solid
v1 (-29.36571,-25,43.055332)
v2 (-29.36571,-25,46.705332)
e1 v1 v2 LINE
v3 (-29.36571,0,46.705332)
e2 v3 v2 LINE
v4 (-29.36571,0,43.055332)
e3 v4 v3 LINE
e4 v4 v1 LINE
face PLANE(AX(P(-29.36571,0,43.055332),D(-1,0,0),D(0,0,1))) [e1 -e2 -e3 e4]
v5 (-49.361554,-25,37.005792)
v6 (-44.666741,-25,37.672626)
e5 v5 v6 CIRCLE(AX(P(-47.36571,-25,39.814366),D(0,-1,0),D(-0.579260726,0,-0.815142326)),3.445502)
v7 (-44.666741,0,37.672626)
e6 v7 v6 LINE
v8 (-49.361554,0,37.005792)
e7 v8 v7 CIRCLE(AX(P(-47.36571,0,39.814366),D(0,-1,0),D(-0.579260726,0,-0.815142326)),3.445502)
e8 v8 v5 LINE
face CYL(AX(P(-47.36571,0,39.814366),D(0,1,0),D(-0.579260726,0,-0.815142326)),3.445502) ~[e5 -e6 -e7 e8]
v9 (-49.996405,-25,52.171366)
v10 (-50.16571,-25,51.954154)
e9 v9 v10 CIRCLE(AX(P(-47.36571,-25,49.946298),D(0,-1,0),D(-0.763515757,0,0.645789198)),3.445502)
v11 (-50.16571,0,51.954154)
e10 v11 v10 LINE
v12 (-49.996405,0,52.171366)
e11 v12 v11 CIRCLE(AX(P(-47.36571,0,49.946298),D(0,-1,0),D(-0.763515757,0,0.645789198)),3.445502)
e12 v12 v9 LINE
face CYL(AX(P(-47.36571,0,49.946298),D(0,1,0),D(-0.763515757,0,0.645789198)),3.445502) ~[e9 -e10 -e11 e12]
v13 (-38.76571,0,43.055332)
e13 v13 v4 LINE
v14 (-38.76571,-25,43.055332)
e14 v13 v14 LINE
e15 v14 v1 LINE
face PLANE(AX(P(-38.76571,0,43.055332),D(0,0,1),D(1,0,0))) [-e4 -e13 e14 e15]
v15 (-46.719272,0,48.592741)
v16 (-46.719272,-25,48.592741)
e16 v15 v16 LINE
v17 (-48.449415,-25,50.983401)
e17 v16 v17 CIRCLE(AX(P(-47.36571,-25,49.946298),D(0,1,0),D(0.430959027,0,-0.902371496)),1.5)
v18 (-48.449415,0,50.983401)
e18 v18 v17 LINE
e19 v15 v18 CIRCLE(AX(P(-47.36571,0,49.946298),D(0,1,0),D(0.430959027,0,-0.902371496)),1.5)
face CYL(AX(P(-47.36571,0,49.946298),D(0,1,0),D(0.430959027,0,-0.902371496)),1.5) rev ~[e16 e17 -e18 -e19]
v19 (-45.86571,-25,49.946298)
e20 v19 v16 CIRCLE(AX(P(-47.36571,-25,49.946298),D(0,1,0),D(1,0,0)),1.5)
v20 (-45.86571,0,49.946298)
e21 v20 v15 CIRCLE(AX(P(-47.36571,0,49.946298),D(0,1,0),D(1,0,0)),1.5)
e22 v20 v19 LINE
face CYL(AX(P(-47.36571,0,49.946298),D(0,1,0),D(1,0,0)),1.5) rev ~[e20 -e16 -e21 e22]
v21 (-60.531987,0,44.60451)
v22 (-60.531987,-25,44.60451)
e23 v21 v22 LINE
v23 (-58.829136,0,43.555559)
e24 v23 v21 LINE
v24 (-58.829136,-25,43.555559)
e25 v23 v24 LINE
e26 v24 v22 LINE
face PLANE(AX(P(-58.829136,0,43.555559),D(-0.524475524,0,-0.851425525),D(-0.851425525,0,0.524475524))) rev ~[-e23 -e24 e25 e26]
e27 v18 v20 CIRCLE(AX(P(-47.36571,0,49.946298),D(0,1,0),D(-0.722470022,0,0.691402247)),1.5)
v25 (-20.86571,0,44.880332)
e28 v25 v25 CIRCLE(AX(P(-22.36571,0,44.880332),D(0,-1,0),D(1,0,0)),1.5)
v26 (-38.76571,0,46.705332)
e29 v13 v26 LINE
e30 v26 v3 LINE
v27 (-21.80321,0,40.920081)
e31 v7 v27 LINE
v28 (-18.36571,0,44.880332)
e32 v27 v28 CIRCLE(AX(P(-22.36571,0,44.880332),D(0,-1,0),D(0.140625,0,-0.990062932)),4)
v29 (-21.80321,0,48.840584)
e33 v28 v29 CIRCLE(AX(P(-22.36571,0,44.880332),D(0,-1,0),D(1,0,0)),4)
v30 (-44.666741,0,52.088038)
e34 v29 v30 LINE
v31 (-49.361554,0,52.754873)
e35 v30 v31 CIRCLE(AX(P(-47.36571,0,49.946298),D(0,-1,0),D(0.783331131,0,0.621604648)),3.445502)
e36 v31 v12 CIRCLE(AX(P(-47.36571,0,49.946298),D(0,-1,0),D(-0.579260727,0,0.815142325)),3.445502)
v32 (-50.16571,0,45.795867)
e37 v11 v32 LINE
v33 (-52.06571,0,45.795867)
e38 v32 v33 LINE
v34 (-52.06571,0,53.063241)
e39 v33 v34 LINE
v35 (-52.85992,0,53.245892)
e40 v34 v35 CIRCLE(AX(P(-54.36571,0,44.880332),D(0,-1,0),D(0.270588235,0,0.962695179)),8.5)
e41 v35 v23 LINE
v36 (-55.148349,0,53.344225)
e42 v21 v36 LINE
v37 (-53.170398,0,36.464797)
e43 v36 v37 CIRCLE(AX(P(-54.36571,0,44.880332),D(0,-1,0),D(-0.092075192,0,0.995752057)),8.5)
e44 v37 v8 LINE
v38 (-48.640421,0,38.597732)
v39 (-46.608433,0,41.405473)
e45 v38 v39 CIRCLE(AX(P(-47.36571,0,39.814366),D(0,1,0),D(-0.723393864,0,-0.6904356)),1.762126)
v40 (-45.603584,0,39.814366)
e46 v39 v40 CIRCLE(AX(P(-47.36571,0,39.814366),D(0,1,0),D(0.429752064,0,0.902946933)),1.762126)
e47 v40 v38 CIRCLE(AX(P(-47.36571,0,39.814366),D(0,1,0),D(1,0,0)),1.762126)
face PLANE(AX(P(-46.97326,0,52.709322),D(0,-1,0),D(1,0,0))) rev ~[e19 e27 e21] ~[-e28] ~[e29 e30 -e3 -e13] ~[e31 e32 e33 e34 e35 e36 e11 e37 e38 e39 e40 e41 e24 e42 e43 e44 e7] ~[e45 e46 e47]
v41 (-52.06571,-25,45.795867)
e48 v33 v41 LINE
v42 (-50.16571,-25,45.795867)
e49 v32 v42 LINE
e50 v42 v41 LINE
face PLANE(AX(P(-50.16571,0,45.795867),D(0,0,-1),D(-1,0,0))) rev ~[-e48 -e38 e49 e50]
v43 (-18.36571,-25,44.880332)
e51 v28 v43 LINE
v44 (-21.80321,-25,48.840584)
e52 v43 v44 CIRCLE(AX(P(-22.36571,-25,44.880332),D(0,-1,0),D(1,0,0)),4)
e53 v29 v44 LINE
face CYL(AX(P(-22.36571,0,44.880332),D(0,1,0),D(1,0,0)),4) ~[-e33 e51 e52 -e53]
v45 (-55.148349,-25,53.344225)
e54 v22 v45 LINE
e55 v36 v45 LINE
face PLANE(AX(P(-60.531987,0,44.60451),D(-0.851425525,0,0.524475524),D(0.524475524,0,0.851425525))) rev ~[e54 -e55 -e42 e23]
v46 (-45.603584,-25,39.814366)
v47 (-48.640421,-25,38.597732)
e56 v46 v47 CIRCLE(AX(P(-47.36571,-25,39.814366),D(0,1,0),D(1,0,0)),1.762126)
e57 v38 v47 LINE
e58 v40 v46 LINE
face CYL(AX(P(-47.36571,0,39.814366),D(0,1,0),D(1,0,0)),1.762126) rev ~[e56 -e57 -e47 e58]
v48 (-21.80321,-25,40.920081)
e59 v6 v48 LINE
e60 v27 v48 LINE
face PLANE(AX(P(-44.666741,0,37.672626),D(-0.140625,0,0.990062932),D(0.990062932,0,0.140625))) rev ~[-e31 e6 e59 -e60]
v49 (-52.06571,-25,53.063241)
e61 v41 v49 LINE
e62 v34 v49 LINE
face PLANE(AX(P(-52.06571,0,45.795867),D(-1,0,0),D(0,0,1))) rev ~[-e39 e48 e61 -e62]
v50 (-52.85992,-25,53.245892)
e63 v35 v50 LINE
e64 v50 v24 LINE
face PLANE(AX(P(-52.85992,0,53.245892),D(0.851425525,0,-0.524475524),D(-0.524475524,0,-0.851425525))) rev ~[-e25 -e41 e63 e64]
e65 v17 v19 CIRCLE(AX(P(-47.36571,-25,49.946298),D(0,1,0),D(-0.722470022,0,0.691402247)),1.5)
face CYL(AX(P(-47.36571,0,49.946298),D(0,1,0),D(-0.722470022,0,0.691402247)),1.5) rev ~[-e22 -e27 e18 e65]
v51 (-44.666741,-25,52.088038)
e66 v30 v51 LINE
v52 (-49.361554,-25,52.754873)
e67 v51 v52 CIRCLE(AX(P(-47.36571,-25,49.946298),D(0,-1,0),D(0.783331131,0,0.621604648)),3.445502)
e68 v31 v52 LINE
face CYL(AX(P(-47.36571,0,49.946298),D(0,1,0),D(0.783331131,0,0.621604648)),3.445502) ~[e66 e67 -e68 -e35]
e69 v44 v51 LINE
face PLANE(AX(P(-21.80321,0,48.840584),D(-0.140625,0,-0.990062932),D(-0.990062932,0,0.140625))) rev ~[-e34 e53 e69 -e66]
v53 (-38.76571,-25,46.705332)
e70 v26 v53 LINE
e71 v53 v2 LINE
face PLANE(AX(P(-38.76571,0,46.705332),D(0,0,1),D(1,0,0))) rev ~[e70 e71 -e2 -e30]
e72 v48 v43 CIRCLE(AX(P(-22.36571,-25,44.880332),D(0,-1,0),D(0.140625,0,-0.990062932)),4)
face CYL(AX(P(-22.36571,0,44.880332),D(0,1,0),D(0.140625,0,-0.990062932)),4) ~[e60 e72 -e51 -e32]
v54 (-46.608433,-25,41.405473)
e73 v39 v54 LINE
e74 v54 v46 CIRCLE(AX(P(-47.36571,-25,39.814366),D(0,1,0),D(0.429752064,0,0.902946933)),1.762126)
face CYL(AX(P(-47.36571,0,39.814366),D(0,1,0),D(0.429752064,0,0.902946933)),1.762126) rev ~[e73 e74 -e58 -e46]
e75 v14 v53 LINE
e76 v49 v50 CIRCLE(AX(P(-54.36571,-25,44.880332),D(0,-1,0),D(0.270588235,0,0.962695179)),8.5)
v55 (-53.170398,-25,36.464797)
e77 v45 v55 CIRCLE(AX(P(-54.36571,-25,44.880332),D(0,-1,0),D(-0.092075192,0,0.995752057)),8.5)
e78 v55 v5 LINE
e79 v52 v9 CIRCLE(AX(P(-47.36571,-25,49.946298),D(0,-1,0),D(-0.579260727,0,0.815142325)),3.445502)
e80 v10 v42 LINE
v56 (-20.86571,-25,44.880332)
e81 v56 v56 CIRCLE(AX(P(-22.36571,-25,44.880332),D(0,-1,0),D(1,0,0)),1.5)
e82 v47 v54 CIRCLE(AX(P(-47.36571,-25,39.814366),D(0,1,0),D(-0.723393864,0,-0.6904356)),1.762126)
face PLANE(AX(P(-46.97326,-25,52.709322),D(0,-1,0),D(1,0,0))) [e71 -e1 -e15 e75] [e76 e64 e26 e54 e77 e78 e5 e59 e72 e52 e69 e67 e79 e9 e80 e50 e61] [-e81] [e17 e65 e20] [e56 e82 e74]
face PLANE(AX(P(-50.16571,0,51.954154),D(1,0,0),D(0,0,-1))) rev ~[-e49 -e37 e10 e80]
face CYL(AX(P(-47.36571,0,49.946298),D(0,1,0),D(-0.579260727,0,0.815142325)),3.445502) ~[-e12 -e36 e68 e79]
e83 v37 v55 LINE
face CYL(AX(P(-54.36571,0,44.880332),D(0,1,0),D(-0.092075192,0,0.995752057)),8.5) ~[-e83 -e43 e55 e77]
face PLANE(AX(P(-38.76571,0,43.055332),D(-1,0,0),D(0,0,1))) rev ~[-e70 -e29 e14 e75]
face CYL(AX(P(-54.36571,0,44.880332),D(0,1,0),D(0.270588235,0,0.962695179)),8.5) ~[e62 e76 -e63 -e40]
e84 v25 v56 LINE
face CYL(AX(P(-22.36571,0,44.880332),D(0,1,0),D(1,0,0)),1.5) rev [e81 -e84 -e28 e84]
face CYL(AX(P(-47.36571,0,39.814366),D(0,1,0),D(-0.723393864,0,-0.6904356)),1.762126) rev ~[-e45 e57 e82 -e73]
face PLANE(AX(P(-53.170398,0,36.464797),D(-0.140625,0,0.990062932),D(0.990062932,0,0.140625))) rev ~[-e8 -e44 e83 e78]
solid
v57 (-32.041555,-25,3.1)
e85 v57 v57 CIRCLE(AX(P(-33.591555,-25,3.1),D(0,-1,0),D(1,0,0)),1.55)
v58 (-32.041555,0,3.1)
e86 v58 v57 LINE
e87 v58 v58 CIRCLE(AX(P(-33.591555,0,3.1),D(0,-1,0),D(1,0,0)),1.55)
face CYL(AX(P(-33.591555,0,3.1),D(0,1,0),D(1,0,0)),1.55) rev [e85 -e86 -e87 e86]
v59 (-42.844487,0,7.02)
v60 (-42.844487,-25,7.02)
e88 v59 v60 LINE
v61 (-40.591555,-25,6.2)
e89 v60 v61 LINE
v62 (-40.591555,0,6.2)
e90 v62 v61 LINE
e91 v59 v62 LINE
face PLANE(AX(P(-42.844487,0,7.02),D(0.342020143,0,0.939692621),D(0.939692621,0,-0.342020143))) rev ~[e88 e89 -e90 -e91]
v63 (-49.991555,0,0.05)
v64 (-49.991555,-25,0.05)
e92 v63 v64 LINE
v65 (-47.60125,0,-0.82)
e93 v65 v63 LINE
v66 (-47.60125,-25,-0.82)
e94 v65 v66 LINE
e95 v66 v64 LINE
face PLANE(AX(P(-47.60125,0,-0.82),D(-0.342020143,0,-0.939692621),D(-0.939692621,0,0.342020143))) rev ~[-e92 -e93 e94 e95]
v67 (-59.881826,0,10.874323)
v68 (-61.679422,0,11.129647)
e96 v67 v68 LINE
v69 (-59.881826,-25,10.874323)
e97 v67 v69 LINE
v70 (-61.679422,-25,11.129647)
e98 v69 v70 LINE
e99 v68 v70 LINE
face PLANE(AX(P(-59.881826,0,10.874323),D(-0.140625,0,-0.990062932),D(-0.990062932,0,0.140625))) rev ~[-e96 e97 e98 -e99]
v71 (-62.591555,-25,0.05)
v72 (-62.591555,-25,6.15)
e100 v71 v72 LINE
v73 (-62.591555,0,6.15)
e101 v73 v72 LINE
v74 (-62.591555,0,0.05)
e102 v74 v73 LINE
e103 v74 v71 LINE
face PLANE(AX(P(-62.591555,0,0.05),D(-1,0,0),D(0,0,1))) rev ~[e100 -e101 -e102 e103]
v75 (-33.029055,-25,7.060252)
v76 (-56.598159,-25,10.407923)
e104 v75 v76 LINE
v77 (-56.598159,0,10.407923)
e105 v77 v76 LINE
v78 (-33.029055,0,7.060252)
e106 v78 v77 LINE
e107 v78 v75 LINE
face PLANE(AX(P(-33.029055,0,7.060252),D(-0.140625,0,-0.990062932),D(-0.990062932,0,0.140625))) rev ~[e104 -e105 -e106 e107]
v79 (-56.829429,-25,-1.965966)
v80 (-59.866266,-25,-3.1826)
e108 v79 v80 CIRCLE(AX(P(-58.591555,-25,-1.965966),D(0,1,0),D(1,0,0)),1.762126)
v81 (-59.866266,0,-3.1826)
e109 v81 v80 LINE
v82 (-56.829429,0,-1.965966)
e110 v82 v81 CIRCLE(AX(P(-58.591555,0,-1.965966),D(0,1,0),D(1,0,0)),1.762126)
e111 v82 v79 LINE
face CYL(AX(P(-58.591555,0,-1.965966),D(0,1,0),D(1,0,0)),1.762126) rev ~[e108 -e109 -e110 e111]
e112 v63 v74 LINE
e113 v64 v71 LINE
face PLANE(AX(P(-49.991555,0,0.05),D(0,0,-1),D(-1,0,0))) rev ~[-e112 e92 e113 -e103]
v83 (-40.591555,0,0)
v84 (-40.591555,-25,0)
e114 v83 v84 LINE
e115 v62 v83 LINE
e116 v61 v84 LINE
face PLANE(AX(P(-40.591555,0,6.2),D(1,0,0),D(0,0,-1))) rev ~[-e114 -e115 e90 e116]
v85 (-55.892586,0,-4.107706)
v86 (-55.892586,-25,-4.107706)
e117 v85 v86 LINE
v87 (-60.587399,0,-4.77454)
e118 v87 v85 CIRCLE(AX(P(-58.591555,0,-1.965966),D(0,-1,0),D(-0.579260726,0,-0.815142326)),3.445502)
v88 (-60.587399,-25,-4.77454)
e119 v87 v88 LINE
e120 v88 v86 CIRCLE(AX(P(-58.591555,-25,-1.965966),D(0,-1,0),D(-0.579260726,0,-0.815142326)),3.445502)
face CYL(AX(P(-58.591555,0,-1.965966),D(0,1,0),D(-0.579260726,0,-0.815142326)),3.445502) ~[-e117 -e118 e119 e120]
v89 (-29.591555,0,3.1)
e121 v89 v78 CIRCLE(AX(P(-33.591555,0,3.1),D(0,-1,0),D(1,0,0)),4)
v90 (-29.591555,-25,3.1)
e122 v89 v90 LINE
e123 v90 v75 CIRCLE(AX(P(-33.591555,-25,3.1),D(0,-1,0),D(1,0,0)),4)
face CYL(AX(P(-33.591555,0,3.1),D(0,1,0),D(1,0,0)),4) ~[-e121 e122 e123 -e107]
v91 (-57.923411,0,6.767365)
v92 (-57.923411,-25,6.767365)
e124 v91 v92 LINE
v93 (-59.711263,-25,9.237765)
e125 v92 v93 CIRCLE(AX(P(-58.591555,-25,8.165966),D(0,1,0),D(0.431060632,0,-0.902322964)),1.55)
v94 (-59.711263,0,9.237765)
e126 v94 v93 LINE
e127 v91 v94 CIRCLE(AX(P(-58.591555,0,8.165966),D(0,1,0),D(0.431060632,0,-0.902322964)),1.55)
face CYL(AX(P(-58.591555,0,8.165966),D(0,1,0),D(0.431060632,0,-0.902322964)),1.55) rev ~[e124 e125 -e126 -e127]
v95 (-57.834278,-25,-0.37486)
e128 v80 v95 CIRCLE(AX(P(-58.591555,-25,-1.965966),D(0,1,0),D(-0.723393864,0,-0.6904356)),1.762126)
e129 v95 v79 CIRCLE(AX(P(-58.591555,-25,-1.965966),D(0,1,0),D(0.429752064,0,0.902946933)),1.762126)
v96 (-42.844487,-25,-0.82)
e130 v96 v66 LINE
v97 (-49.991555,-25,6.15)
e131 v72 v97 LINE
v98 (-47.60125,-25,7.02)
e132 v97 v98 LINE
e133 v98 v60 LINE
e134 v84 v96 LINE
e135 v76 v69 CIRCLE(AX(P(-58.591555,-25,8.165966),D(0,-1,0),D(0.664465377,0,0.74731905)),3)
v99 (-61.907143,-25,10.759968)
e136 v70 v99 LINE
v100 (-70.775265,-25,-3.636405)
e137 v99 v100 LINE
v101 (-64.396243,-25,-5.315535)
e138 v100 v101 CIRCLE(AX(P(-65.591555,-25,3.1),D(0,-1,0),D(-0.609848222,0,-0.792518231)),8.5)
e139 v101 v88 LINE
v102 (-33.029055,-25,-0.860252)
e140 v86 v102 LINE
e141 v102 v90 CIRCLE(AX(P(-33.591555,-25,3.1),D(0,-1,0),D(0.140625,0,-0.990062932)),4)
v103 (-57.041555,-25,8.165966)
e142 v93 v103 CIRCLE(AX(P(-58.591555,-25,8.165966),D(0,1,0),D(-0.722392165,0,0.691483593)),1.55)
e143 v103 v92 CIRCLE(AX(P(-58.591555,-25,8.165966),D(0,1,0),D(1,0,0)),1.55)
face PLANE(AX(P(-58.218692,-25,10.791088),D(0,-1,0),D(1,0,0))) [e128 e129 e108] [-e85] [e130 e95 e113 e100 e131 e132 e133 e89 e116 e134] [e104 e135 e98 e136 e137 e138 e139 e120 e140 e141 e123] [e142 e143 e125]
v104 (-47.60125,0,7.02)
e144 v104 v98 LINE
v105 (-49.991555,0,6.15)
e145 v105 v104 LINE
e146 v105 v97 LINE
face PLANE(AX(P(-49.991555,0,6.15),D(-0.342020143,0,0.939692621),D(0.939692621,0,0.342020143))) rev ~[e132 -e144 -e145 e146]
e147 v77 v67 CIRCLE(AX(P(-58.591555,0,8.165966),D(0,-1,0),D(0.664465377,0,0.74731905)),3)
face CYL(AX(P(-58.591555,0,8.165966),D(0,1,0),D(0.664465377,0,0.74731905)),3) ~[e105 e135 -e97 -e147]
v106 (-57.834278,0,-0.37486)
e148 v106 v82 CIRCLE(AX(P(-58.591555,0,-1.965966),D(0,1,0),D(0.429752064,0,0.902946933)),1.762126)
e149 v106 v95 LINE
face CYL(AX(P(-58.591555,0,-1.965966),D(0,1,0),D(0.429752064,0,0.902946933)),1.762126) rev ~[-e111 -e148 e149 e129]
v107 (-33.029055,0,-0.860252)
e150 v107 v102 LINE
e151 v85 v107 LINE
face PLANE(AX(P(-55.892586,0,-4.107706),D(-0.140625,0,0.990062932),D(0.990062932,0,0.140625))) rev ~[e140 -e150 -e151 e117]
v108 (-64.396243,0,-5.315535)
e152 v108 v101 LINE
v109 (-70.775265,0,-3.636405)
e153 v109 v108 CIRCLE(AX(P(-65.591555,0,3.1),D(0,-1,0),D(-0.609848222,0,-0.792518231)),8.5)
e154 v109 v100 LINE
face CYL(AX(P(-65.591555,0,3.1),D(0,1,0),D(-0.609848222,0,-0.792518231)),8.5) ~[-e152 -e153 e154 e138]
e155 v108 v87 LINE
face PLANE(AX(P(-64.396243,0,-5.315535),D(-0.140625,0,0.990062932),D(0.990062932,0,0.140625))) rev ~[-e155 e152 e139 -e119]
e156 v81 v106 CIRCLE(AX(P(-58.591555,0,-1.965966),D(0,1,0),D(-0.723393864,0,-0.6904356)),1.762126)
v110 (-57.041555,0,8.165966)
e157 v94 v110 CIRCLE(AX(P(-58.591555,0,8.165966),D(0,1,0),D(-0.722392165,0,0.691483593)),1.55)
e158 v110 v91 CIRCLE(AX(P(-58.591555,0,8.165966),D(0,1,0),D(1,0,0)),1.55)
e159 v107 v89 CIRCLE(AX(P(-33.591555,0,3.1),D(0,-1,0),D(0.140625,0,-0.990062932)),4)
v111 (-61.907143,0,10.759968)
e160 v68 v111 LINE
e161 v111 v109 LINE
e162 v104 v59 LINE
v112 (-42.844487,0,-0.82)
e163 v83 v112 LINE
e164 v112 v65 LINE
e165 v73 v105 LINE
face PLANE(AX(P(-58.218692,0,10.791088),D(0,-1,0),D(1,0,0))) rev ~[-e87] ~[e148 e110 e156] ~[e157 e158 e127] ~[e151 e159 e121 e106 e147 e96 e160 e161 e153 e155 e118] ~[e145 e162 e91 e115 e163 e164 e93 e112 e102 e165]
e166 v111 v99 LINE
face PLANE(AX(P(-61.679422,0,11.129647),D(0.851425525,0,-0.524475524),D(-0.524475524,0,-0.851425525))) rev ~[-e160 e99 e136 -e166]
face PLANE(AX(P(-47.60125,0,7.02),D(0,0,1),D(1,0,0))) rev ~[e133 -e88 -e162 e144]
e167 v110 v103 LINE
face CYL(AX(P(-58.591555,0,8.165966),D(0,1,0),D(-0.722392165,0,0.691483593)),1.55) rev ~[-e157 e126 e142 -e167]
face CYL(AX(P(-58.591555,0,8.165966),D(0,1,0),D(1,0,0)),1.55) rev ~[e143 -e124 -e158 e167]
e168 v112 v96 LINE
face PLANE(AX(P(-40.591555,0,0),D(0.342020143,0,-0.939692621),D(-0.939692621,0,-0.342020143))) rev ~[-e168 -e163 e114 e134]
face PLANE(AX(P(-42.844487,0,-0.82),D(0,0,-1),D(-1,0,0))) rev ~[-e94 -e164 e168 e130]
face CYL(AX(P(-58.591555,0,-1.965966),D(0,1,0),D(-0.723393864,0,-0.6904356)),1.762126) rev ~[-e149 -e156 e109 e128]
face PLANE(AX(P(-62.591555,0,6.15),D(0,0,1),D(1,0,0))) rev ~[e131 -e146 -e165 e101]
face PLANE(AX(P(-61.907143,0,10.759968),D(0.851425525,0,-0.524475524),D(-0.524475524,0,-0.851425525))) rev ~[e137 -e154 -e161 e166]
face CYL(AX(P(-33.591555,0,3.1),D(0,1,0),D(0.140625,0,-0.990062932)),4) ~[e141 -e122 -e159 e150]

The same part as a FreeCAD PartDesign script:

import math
import FreeCAD as App
import Part
import Sketcher
from FreeCAD import Vector

doc = App.newDocument("Part")
params = doc.addObject("Spreadsheet::Sheet", "Params")
for row, (alias, value) in enumerate([
    ("sketch1_diameter", "3 mm"),
    ("sketch1_radius", "4 mm"),
    ("sketch1_radius2", "8.5 mm"),
    ("sketch1_length", "2 mm"),
    ("sketch1_width", "1.9 mm"),
    ("pad1_length", "25 mm"),
    ("sketch2_radius", "3 mm"),
    ("sketch2_radius2", "4 mm"),
    ("sketch2_diameter", "3.1 mm"),
    ("sketch2_radius3", "8.5 mm"),
    ("sketch2_radius4", "1.55 mm"),
    ("pad2_length", "25 mm"),
], start=1):
    params.set(f"A{row}", alias)
    params.set(f"B{row}", "=" + value)
    params.setAlias(f"B{row}", alias)

body = doc.addObject("PartDesign::Body", "Body")

sketch1 = body.newObject("Sketcher::SketchObject", "Sketch")
sketch1.AttachmentSupport = (doc.getObject("XZ_Plane"), [""])
sketch1.MapMode = "FlatFace"
sketch1.addGeometry([
    Part.ArcOfCircle(Part.Circle(Vector(-47.37, 49.95, 0), Vector(0, 0, 1), 3.45), math.radians(38), math.radians(125)),
    Part.ArcOfCircle(Part.Circle(Vector(-47.37, 49.95, 0), Vector(0, 0, 1), 3.45), math.radians(125.4), math.radians(139.78)),
    Part.ArcOfCircle(Part.Circle(Vector(-47.37, 49.95, 0), Vector(0, 0, 1), 3.45), math.radians(139.78), math.radians(144.36)),
    Part.LineSegment(Vector(-50.17, 51.95, 0), Vector(-50.17, 45.8, 0)),
    Part.LineSegment(Vector(-50.17, 45.8, 0), Vector(-52.07, 45.8, 0)),
    Part.LineSegment(Vector(-52.07, 45.8, 0), Vector(-52.07, 53.06, 0)),
    Part.ArcOfCircle(Part.Circle(Vector(-54.37, 44.88, 0), Vector(0, 0, 1), 8.5), math.radians(74.3), math.radians(79.8)),
    Part.LineSegment(Vector(-52.86, 53.25, 0), Vector(-58.83, 43.56, 0)),
    Part.LineSegment(Vector(-58.83, 43.56, 0), Vector(-60.53, 44.6, 0)),
    Part.LineSegment(Vector(-60.53, 44.6, 0), Vector(-55.15, 53.34, 0)),
    Part.ArcOfCircle(Part.Circle(Vector(-54.37, 44.88, 0), Vector(0, 0, 1), 8.5), math.radians(95), math.radians(278)),
    Part.LineSegment(Vector(-53.17, 36.46, 0), Vector(-49.36, 37.01, 0)),
    Part.ArcOfCircle(Part.Circle(Vector(-47.37, 39.81, 0), Vector(0, 0, 1), 3.45), math.radians(-125), math.radians(-38)),
    Part.LineSegment(Vector(-44.67, 37.67, 0), Vector(-21.8, 40.92, 0)),
    Part.ArcOfCircle(Part.Circle(Vector(-22.37, 44.88, 0), Vector(0, 0, 1), 4), math.radians(-82), math.radians(0)),
    Part.ArcOfCircle(Part.Circle(Vector(-22.37, 44.88, 0), Vector(0, 0, 1), 4), math.radians(0), math.radians(82)),
    Part.LineSegment(Vector(-21.8, 48.84, 0), Vector(-44.67, 52.09, 0)),
    Part.ArcOfCircle(Part.Circle(Vector(-47.37, 49.95, 0), Vector(0, 0, 1), 1.5), math.radians(0), math.radians(136)),
    Part.ArcOfCircle(Part.Circle(Vector(-47.37, 49.95, 0), Vector(0, 0, 1), 1.5), math.radians(-64), math.radians(0)),
    Part.ArcOfCircle(Part.Circle(Vector(-47.37, 49.95, 0), Vector(0, 0, 1), 1.5), math.radians(136), math.radians(296)),
    Part.ArcOfCircle(Part.Circle(Vector(-47.37, 39.81, 0), Vector(0, 0, 1), 1.76), math.radians(0), math.radians(65)),
    Part.ArcOfCircle(Part.Circle(Vector(-47.37, 39.81, 0), Vector(0, 0, 1), 1.76), math.radians(-136), math.radians(0)),
    Part.ArcOfCircle(Part.Circle(Vector(-47.37, 39.81, 0), Vector(0, 0, 1), 1.76), math.radians(65), math.radians(224)),
    Part.LineSegment(Vector(-29.37, 43.06, 0), Vector(-38.77, 43.06, 0)),
    Part.LineSegment(Vector(-38.77, 43.06, 0), Vector(-38.77, 46.71, 0)),
    Part.LineSegment(Vector(-38.77, 46.71, 0), Vector(-29.37, 46.71, 0)),
    Part.LineSegment(Vector(-29.37, 46.71, 0), Vector(-29.37, 43.06, 0)),
    Part.Circle(Vector(-22.37, 44.88, 0), Vector(0, 0, 1), 1.5),
], False)
sketch1.addConstraint([
    Sketcher.Constraint("Tangent", 0, 2, 1, 1),
    Sketcher.Constraint("Tangent", 1, 2, 2, 1),
    Sketcher.Constraint("Coincident", 2, 2, 3, 1),
    Sketcher.Constraint("Coincident", 3, 2, 4, 1),
    Sketcher.Constraint("Coincident", 4, 2, 5, 1),
    Sketcher.Constraint("Coincident", 5, 2, 6, 1),
    Sketcher.Constraint("Coincident", 6, 2, 7, 1),
    Sketcher.Constraint("Coincident", 7, 2, 8, 1),
    Sketcher.Constraint("Coincident", 8, 2, 9, 1),
    Sketcher.Constraint("Coincident", 9, 2, 10, 1),
    Sketcher.Constraint("Tangent", 10, 2, 11, 1),
    Sketcher.Constraint("Coincident", 11, 2, 12, 1),
    Sketcher.Constraint("Coincident", 12, 2, 13, 1),
    Sketcher.Constraint("Tangent", 13, 2, 14, 1),
    Sketcher.Constraint("Tangent", 14, 2, 15, 1),
    Sketcher.Constraint("Tangent", 15, 2, 16, 1),
    Sketcher.Constraint("Coincident", 16, 2, 0, 1),
    Sketcher.Constraint("Tangent", 17, 1, 18, 2),
    Sketcher.Constraint("Tangent", 18, 1, 19, 2),
    Sketcher.Constraint("Tangent", 19, 1, 17, 2),
    Sketcher.Constraint("Tangent", 20, 1, 21, 2),
    Sketcher.Constraint("Tangent", 21, 1, 22, 2),
    Sketcher.Constraint("Tangent", 22, 1, 20, 2),
    Sketcher.Constraint("Coincident", 23, 2, 24, 1),
    Sketcher.Constraint("Coincident", 24, 2, 25, 1),
    Sketcher.Constraint("Coincident", 25, 2, 26, 1),
    Sketcher.Constraint("Coincident", 26, 2, 23, 1),
    Sketcher.Constraint("Vertical", 3),
    Sketcher.Constraint("Horizontal", 4),
    Sketcher.Constraint("Vertical", 5),
    Sketcher.Constraint("Horizontal", 23),
    Sketcher.Constraint("Vertical", 24),
    Sketcher.Constraint("Horizontal", 25),
    Sketcher.Constraint("Vertical", 26),
    Sketcher.Constraint("Coincident", 2, 3, 0, 3),
    Sketcher.Constraint("Coincident", 10, 3, 6, 3),
    Sketcher.Constraint("Coincident", 17, 3, 0, 3),
    Sketcher.Constraint("Coincident", 20, 3, 12, 3),
    Sketcher.Constraint("Coincident", 27, 3, 14, 3),
    Sketcher.Constraint("Equal", 6, 10),
    Sketcher.Constraint("Equal", 2, 12),
    Sketcher.Constraint("Equal", 14, 15),
    Sketcher.Constraint("Equal", 19, 27),
    Sketcher.Constraint("Perpendicular", 7, 8),
    Sketcher.Constraint("Perpendicular", 8, 9),
    Sketcher.Constraint("Parallel", 11, 13),
    Sketcher.Constraint("Horizontal", 10, 3, 14, 3),
    Sketcher.Constraint("Horizontal", 27, 3, 14, 2),
    Sketcher.Constraint("Horizontal", 19, 3, 17, 1),
    Sketcher.Constraint("Horizontal", 22, 3, 20, 1),
    Sketcher.Constraint("Vertical", 2, 3, 12, 3),
    Sketcher.Constraint("Vertical", 0, 2, 11, 2),
    Sketcher.Constraint("Vertical", 13, 2, 15, 2),
    Sketcher.Constraint("Vertical", 12, 2, 16, 2),
    Sketcher.Constraint("Diameter", 27, 3.0),
    Sketcher.Constraint("Radius", 14, 4.0),
    Sketcher.Constraint("Radius", 6, 8.5),
    Sketcher.Constraint("Distance", 8, 2.0),
    Sketcher.Constraint("DistanceX", 4, 2, 4, 1, 1.9),
    Sketcher.Constraint("DistanceX", 23, 2, 23, 1, 9.4),
    Sketcher.Constraint("DistanceX", 6, 3, 0, 3, 7.0),
    Sketcher.Constraint("DistanceX", 2, 3, 14, 3, 25.0),
    Sketcher.Constraint("DistanceX", 25, 2, 14, 3, 7.0),
    Sketcher.Constraint("DistanceY", 24, 1, 24, 2, 3.65),
    Sketcher.Constraint("DistanceX", 2, 2, 0, 3, 2.8),
    Sketcher.Constraint("Radius", 0, 3.445502),
    Sketcher.Constraint("Radius", 20, 1.762126),
    Sketcher.Constraint("DistanceY", 14, 3, 25, 2, 1.825),
    Sketcher.Constraint("DistanceY", -1, 1, 0, 3, 49.946298),
    Sketcher.Constraint("DistanceY", -1, 1, 19, 1, 50.983401),
    Sketcher.Constraint("DistanceX", 14, 3, 13, 2, 0.5625),
    Sketcher.Constraint("DistanceY", 3, 2, 3, 1, 6.158287),
    Sketcher.Constraint("DistanceY", 5, 1, 5, 2, 7.267374),
    Sketcher.Constraint("DistanceX", 0, 3, -1, 1, 47.36571),
    Sketcher.Constraint("DistanceX", 6, 2, -1, 1, 52.85992),
    Sketcher.Constraint("DistanceY", -1, 1, 7, 2, 43.555559),
    Sketcher.Constraint("DistanceY", -1, 1, 8, 2, 44.60451),
    Sketcher.Constraint("DistanceX", 18, 1, -1, 1, 46.719272),
    Sketcher.Constraint("DistanceX", 21, 1, -1, 1, 48.640421),
    Sketcher.Constraint("DistanceX", 1, 2, 0, 2, 0.634851),
    Sketcher.Constraint("DistanceX", 22, 1, 20, 1, 1.004849),
])
sketch1.setExpression("Constraints[54]", "Params.sketch1_diameter")
sketch1.setExpression("Constraints[55]", "Params.sketch1_radius")
sketch1.setExpression("Constraints[56]", "Params.sketch1_radius2")
sketch1.setExpression("Constraints[57]", "Params.sketch1_length")
sketch1.setExpression("Constraints[58]", "Params.sketch1_width")
pad1 = body.newObject("PartDesign::Pad", "Pad")
pad1.Profile = sketch1
pad1.setExpression("Length", "Params.pad1_length")
body2 = doc.addObject("PartDesign::Body", "Body001")

sketch2 = body2.newObject("Sketcher::SketchObject", "Sketch001")
sketch2.AttachmentSupport = (doc.getObject("XZ_Plane001"), [""])
sketch2.MapMode = "FlatFace"
sketch2.addGeometry([
    Part.ArcOfCircle(Part.Circle(Vector(-58.591555, 8.165966, 0), Vector(0, 0, 1), 3), math.radians(48.358676), math.radians(115.473296)),
    Part.LineSegment(Vector(-59.881826, 10.874323, 0), Vector(-61.679422, 11.129647, 0)),
    Part.LineSegment(Vector(-61.679422, 11.129647, 0), Vector(-61.907143, 10.759968, 0)),
    Part.LineSegment(Vector(-61.907143, 10.759968, 0), Vector(-70.775265, -3.636405, 0)),
    Part.ArcOfCircle(Part.Circle(Vector(-65.591555, 3.1, 0), Vector(0, 0, 1), 8.5), math.radians(-127.578529), math.radians(-81.915986)),
    Part.LineSegment(Vector(-64.396243, -5.315535, 0), Vector(-60.587399, -4.77454, 0)),
    Part.ArcOfCircle(Part.Circle(Vector(-58.591555, -1.965966, 0), Vector(0, 0, 1), 3.445502), math.radians(-125.398563), math.radians(-38.433409)),
    Part.LineSegment(Vector(-55.892586, -4.107706, 0), Vector(-33.029055, -0.860252, 0)),
    Part.ArcOfCircle(Part.Circle(Vector(-33.591555, 3.1, 0), Vector(0, 0, 1), 4), math.radians(-81.915986), math.radians(0)),
    Part.ArcOfCircle(Part.Circle(Vector(-33.591555, 3.1, 0), Vector(0, 0, 1), 4), math.radians(0), math.radians(81.915986)),
    Part.LineSegment(Vector(-33.029055, 7.060252, 0), Vector(-56.598159, 10.407923, 0)),
    Part.ArcOfCircle(Part.Circle(Vector(-58.591555, -1.965966, 0), Vector(0, 0, 1), 1.762126), math.radians(0), math.radians(64.548173)),
    Part.ArcOfCircle(Part.Circle(Vector(-58.591555, -1.965966, 0), Vector(0, 0, 1), 1.762126), math.radians(-136.3354), math.radians(0)),
    Part.ArcOfCircle(Part.Circle(Vector(-58.591555, -1.965966, 0), Vector(0, 0, 1), 1.762126), math.radians(64.548173), math.radians(223.6646)),
    Part.LineSegment(Vector(-62.591555, 0.05, 0), Vector(-62.591555, 6.15, 0)),
    Part.LineSegment(Vector(-62.591555, 6.15, 0), Vector(-49.991555, 6.15, 0)),
    Part.LineSegment(Vector(-49.991555, 6.15, 0), Vector(-47.60125, 7.02, 0)),
    Part.LineSegment(Vector(-47.60125, 7.02, 0), Vector(-42.844487, 7.02, 0)),
    Part.LineSegment(Vector(-42.844487, 7.02, 0), Vector(-40.591555, 6.2, 0)),
    Part.LineSegment(Vector(-40.591555, 6.2, 0), Vector(-40.591555, 0, 0)),
    Part.LineSegment(Vector(-40.591555, 0, 0), Vector(-42.844487, -0.82, 0)),
    Part.LineSegment(Vector(-42.844487, -0.82, 0), Vector(-47.60125, -0.82, 0)),
    Part.LineSegment(Vector(-47.60125, -0.82, 0), Vector(-49.991555, 0.05, 0)),
    Part.LineSegment(Vector(-49.991555, 0.05, 0), Vector(-62.591555, 0.05, 0)),
    Part.ArcOfCircle(Part.Circle(Vector(-58.591555, 8.165966, 0), Vector(0, 0, 1), 1.55), math.radians(0), math.radians(136.252337)),
    Part.ArcOfCircle(Part.Circle(Vector(-58.591555, 8.165966, 0), Vector(0, 0, 1), 1.55), math.radians(-64.465111), math.radians(0)),
    Part.ArcOfCircle(Part.Circle(Vector(-58.591555, 8.165966, 0), Vector(0, 0, 1), 1.55), math.radians(136.252337), math.radians(295.534889)),
    Part.Circle(Vector(-33.591555, 3.1, 0), Vector(0, 0, 1), 1.55),
], False)
sketch2.addConstraint([
    Sketcher.Constraint("Coincident", 0, 2, 1, 1),
    Sketcher.Constraint("Coincident", 1, 2, 2, 1),
    Sketcher.Constraint("Coincident", 2, 2, 3, 1),
    Sketcher.Constraint("Coincident", 3, 2, 4, 1),
    Sketcher.Constraint("Coincident", 4, 2, 5, 1),
    Sketcher.Constraint("Coincident", 5, 2, 6, 1),
    Sketcher.Constraint("Coincident", 6, 2, 7, 1),
    Sketcher.Constraint("Coincident", 7, 2, 8, 1),
    Sketcher.Constraint("Coincident", 8, 2, 9, 1),
    Sketcher.Constraint("Coincident", 9, 2, 10, 1),
    Sketcher.Constraint("Coincident", 10, 2, 0, 1),
    Sketcher.Constraint("Coincident", 11, 1, 12, 2),
    Sketcher.Constraint("Coincident", 12, 1, 13, 2),
    Sketcher.Constraint("Coincident", 13, 1, 11, 2),
    Sketcher.Constraint("Coincident", 14, 2, 15, 1),
    Sketcher.Constraint("Coincident", 15, 2, 16, 1),
    Sketcher.Constraint("Coincident", 16, 2, 17, 1),
    Sketcher.Constraint("Coincident", 17, 2, 18, 1),
    Sketcher.Constraint("Coincident", 18, 2, 19, 1),
    Sketcher.Constraint("Coincident", 19, 2, 20, 1),
    Sketcher.Constraint("Coincident", 20, 2, 21, 1),
    Sketcher.Constraint("Coincident", 21, 2, 22, 1),
    Sketcher.Constraint("Coincident", 22, 2, 23, 1),
    Sketcher.Constraint("Coincident", 23, 2, 14, 1),
    Sketcher.Constraint("Coincident", 24, 1, 25, 2),
    Sketcher.Constraint("Coincident", 25, 1, 26, 2),
    Sketcher.Constraint("Coincident", 26, 1, 24, 2),
    Sketcher.Constraint("Vertical", 14),
    Sketcher.Constraint("Horizontal", 15),
    Sketcher.Constraint("Horizontal", 17),
    Sketcher.Constraint("Vertical", 19),
    Sketcher.Constraint("Horizontal", 21),
    Sketcher.Constraint("Horizontal", 23),
    Sketcher.Constraint("Coincident", 9, 3, 8, 3),
    Sketcher.Constraint("Coincident", 11, 3, 6, 3),
    Sketcher.Constraint("Coincident", 12, 3, 6, 3),
    Sketcher.Constraint("Coincident", 24, 3, 0, 3),
    Sketcher.Constraint("Coincident", 25, 3, 0, 3),
    Sketcher.Constraint("Coincident", 27, 3, 8, 3),
    Sketcher.Constraint("PointOnObject", 19, 2, -1),
    Sketcher.Constraint("Radius", 0, 3.0),
    Sketcher.Constraint("Radius", 8, 4.0),
    Sketcher.Constraint("Diameter", 27, 3.1),
    Sketcher.Constraint("Radius", 4, 8.5),
    Sketcher.Constraint("Radius", 24, 1.55),
    Sketcher.Constraint("Radius", 26, 1.55),
    Sketcher.Constraint("DistanceX", 15, 1, 15, 2, 12.6),
    Sketcher.Constraint("DistanceX", 23, 2, 23, 1, 12.6),
    Sketcher.Constraint("DistanceY", 14, 1, 14, 2, 6.1),
    Sketcher.Constraint("DistanceY", 19, 2, 19, 1, 6.2),
    Sketcher.Constraint("DistanceX", 4, 3, 0, 3, 7.0),
    Sketcher.Constraint("DistanceX", 4, 3, 6, 3, 7.0),
    Sketcher.Constraint("DistanceX", 0, 3, 8, 3, 25.0),
    Sketcher.Constraint("DistanceX", 4, 3, 13, 3, 7.0),
    Sketcher.Constraint("DistanceX", 4, 3, 14, 2, 3.0),
    Sketcher.Constraint("DistanceX", 18, 2, 8, 3, 7.0),
    Sketcher.Constraint("DistanceY", -1, 1, 4, 3, 3.1),
    Sketcher.Constraint("DistanceY", -1, 1, 8, 3, 3.1),
    Sketcher.Constraint("DistanceY", -1, 1, 8, 2, 3.1),
    Sketcher.Constraint("DistanceY", -1, 1, 14, 2, 6.15),
    Sketcher.Constraint("DistanceY", -1, 1, 16, 2, 7.02),
    Sketcher.Constraint("DistanceY", 20, 2, -1, 1, 0.82),
    Sketcher.Constraint("Radius", 6, 3.445502),
    Sketcher.Constraint("Radius", 11, 1.762126),
    Sketcher.Constraint("DistanceX", 5, 2, -1, 1, 60.587399),
    Sketcher.Constraint("DistanceY", 12, 1, -1, 1, 3.1826),
    Sketcher.Constraint("DistanceX", 8, 3, 7, 2, 0.5625),
    Sketcher.Constraint("DistanceX", 8, 3, 9, 2, 0.5625),
    Sketcher.Constraint("DistanceY", 10, 2, 0, 2, 0.4664),
    Sketcher.Constraint("DistanceY", 25, 1, 0, 3, 1.398601),
    Sketcher.Constraint("DistanceY", 25, 1, 24, 1, 1.398601),
    Sketcher.Constraint("DistanceY", 0, 3, 26, 1, 1.0718),
    Sketcher.Constraint("Distance", 2, 0.434189),
    Sketcher.Constraint("Distance", 16, 2.54371),
    Sketcher.Constraint("Distance", 18, 2.39752),
    Sketcher.Constraint("Distance", 20, 2.39752),
    Sketcher.Constraint("Distance", 22, 2.54371),
    Sketcher.Constraint("DistanceX", 1, 2, -1, 1, 61.679422),
    Sketcher.Constraint("DistanceY", 5, 2, -1, 1, 4.77454),
    Sketcher.Constraint("DistanceX", 10, 2, -1, 1, 56.598159),
    Sketcher.Constraint("DistanceX", 11, 1, -1, 1, 56.829429),
    Sketcher.Constraint("DistanceY", 13, 1, -1, 1, 0.37486),
    Sketcher.Constraint("DistanceY", 6, 3, 0, 3, 10.131932),
    Sketcher.Constraint("DistanceY", 0, 3, 1, 2, 2.963682),
    Sketcher.Constraint("DistanceX", 2, 2, 1, 2, 0.227721),
    Sketcher.Constraint("DistanceX", 3, 2, 4, 3, 5.18371),
    Sketcher.Constraint("DistanceY", 4, 2, 3, 2, 1.67913),
    Sketcher.Constraint("DistanceX", 6, 3, 6, 2, 2.698969),
    Sketcher.Constraint("DistanceY", 6, 2, 11, 1, 2.14174),
])
sketch2.setExpression("Constraints[40]", "Params.sketch2_radius")
sketch2.setExpression("Constraints[41]", "Params.sketch2_radius2")
sketch2.setExpression("Constraints[42]", "Params.sketch2_diameter")
sketch2.setExpression("Constraints[43]", "Params.sketch2_radius3")
sketch2.setExpression("Constraints[44]", "Params.sketch2_radius4")
pad2 = body2.newObject("PartDesign::Pad", "Pad001")
pad2.Profile = sketch2
pad2.setExpression("Length", "Params.pad2_length")

doc.recompute()
